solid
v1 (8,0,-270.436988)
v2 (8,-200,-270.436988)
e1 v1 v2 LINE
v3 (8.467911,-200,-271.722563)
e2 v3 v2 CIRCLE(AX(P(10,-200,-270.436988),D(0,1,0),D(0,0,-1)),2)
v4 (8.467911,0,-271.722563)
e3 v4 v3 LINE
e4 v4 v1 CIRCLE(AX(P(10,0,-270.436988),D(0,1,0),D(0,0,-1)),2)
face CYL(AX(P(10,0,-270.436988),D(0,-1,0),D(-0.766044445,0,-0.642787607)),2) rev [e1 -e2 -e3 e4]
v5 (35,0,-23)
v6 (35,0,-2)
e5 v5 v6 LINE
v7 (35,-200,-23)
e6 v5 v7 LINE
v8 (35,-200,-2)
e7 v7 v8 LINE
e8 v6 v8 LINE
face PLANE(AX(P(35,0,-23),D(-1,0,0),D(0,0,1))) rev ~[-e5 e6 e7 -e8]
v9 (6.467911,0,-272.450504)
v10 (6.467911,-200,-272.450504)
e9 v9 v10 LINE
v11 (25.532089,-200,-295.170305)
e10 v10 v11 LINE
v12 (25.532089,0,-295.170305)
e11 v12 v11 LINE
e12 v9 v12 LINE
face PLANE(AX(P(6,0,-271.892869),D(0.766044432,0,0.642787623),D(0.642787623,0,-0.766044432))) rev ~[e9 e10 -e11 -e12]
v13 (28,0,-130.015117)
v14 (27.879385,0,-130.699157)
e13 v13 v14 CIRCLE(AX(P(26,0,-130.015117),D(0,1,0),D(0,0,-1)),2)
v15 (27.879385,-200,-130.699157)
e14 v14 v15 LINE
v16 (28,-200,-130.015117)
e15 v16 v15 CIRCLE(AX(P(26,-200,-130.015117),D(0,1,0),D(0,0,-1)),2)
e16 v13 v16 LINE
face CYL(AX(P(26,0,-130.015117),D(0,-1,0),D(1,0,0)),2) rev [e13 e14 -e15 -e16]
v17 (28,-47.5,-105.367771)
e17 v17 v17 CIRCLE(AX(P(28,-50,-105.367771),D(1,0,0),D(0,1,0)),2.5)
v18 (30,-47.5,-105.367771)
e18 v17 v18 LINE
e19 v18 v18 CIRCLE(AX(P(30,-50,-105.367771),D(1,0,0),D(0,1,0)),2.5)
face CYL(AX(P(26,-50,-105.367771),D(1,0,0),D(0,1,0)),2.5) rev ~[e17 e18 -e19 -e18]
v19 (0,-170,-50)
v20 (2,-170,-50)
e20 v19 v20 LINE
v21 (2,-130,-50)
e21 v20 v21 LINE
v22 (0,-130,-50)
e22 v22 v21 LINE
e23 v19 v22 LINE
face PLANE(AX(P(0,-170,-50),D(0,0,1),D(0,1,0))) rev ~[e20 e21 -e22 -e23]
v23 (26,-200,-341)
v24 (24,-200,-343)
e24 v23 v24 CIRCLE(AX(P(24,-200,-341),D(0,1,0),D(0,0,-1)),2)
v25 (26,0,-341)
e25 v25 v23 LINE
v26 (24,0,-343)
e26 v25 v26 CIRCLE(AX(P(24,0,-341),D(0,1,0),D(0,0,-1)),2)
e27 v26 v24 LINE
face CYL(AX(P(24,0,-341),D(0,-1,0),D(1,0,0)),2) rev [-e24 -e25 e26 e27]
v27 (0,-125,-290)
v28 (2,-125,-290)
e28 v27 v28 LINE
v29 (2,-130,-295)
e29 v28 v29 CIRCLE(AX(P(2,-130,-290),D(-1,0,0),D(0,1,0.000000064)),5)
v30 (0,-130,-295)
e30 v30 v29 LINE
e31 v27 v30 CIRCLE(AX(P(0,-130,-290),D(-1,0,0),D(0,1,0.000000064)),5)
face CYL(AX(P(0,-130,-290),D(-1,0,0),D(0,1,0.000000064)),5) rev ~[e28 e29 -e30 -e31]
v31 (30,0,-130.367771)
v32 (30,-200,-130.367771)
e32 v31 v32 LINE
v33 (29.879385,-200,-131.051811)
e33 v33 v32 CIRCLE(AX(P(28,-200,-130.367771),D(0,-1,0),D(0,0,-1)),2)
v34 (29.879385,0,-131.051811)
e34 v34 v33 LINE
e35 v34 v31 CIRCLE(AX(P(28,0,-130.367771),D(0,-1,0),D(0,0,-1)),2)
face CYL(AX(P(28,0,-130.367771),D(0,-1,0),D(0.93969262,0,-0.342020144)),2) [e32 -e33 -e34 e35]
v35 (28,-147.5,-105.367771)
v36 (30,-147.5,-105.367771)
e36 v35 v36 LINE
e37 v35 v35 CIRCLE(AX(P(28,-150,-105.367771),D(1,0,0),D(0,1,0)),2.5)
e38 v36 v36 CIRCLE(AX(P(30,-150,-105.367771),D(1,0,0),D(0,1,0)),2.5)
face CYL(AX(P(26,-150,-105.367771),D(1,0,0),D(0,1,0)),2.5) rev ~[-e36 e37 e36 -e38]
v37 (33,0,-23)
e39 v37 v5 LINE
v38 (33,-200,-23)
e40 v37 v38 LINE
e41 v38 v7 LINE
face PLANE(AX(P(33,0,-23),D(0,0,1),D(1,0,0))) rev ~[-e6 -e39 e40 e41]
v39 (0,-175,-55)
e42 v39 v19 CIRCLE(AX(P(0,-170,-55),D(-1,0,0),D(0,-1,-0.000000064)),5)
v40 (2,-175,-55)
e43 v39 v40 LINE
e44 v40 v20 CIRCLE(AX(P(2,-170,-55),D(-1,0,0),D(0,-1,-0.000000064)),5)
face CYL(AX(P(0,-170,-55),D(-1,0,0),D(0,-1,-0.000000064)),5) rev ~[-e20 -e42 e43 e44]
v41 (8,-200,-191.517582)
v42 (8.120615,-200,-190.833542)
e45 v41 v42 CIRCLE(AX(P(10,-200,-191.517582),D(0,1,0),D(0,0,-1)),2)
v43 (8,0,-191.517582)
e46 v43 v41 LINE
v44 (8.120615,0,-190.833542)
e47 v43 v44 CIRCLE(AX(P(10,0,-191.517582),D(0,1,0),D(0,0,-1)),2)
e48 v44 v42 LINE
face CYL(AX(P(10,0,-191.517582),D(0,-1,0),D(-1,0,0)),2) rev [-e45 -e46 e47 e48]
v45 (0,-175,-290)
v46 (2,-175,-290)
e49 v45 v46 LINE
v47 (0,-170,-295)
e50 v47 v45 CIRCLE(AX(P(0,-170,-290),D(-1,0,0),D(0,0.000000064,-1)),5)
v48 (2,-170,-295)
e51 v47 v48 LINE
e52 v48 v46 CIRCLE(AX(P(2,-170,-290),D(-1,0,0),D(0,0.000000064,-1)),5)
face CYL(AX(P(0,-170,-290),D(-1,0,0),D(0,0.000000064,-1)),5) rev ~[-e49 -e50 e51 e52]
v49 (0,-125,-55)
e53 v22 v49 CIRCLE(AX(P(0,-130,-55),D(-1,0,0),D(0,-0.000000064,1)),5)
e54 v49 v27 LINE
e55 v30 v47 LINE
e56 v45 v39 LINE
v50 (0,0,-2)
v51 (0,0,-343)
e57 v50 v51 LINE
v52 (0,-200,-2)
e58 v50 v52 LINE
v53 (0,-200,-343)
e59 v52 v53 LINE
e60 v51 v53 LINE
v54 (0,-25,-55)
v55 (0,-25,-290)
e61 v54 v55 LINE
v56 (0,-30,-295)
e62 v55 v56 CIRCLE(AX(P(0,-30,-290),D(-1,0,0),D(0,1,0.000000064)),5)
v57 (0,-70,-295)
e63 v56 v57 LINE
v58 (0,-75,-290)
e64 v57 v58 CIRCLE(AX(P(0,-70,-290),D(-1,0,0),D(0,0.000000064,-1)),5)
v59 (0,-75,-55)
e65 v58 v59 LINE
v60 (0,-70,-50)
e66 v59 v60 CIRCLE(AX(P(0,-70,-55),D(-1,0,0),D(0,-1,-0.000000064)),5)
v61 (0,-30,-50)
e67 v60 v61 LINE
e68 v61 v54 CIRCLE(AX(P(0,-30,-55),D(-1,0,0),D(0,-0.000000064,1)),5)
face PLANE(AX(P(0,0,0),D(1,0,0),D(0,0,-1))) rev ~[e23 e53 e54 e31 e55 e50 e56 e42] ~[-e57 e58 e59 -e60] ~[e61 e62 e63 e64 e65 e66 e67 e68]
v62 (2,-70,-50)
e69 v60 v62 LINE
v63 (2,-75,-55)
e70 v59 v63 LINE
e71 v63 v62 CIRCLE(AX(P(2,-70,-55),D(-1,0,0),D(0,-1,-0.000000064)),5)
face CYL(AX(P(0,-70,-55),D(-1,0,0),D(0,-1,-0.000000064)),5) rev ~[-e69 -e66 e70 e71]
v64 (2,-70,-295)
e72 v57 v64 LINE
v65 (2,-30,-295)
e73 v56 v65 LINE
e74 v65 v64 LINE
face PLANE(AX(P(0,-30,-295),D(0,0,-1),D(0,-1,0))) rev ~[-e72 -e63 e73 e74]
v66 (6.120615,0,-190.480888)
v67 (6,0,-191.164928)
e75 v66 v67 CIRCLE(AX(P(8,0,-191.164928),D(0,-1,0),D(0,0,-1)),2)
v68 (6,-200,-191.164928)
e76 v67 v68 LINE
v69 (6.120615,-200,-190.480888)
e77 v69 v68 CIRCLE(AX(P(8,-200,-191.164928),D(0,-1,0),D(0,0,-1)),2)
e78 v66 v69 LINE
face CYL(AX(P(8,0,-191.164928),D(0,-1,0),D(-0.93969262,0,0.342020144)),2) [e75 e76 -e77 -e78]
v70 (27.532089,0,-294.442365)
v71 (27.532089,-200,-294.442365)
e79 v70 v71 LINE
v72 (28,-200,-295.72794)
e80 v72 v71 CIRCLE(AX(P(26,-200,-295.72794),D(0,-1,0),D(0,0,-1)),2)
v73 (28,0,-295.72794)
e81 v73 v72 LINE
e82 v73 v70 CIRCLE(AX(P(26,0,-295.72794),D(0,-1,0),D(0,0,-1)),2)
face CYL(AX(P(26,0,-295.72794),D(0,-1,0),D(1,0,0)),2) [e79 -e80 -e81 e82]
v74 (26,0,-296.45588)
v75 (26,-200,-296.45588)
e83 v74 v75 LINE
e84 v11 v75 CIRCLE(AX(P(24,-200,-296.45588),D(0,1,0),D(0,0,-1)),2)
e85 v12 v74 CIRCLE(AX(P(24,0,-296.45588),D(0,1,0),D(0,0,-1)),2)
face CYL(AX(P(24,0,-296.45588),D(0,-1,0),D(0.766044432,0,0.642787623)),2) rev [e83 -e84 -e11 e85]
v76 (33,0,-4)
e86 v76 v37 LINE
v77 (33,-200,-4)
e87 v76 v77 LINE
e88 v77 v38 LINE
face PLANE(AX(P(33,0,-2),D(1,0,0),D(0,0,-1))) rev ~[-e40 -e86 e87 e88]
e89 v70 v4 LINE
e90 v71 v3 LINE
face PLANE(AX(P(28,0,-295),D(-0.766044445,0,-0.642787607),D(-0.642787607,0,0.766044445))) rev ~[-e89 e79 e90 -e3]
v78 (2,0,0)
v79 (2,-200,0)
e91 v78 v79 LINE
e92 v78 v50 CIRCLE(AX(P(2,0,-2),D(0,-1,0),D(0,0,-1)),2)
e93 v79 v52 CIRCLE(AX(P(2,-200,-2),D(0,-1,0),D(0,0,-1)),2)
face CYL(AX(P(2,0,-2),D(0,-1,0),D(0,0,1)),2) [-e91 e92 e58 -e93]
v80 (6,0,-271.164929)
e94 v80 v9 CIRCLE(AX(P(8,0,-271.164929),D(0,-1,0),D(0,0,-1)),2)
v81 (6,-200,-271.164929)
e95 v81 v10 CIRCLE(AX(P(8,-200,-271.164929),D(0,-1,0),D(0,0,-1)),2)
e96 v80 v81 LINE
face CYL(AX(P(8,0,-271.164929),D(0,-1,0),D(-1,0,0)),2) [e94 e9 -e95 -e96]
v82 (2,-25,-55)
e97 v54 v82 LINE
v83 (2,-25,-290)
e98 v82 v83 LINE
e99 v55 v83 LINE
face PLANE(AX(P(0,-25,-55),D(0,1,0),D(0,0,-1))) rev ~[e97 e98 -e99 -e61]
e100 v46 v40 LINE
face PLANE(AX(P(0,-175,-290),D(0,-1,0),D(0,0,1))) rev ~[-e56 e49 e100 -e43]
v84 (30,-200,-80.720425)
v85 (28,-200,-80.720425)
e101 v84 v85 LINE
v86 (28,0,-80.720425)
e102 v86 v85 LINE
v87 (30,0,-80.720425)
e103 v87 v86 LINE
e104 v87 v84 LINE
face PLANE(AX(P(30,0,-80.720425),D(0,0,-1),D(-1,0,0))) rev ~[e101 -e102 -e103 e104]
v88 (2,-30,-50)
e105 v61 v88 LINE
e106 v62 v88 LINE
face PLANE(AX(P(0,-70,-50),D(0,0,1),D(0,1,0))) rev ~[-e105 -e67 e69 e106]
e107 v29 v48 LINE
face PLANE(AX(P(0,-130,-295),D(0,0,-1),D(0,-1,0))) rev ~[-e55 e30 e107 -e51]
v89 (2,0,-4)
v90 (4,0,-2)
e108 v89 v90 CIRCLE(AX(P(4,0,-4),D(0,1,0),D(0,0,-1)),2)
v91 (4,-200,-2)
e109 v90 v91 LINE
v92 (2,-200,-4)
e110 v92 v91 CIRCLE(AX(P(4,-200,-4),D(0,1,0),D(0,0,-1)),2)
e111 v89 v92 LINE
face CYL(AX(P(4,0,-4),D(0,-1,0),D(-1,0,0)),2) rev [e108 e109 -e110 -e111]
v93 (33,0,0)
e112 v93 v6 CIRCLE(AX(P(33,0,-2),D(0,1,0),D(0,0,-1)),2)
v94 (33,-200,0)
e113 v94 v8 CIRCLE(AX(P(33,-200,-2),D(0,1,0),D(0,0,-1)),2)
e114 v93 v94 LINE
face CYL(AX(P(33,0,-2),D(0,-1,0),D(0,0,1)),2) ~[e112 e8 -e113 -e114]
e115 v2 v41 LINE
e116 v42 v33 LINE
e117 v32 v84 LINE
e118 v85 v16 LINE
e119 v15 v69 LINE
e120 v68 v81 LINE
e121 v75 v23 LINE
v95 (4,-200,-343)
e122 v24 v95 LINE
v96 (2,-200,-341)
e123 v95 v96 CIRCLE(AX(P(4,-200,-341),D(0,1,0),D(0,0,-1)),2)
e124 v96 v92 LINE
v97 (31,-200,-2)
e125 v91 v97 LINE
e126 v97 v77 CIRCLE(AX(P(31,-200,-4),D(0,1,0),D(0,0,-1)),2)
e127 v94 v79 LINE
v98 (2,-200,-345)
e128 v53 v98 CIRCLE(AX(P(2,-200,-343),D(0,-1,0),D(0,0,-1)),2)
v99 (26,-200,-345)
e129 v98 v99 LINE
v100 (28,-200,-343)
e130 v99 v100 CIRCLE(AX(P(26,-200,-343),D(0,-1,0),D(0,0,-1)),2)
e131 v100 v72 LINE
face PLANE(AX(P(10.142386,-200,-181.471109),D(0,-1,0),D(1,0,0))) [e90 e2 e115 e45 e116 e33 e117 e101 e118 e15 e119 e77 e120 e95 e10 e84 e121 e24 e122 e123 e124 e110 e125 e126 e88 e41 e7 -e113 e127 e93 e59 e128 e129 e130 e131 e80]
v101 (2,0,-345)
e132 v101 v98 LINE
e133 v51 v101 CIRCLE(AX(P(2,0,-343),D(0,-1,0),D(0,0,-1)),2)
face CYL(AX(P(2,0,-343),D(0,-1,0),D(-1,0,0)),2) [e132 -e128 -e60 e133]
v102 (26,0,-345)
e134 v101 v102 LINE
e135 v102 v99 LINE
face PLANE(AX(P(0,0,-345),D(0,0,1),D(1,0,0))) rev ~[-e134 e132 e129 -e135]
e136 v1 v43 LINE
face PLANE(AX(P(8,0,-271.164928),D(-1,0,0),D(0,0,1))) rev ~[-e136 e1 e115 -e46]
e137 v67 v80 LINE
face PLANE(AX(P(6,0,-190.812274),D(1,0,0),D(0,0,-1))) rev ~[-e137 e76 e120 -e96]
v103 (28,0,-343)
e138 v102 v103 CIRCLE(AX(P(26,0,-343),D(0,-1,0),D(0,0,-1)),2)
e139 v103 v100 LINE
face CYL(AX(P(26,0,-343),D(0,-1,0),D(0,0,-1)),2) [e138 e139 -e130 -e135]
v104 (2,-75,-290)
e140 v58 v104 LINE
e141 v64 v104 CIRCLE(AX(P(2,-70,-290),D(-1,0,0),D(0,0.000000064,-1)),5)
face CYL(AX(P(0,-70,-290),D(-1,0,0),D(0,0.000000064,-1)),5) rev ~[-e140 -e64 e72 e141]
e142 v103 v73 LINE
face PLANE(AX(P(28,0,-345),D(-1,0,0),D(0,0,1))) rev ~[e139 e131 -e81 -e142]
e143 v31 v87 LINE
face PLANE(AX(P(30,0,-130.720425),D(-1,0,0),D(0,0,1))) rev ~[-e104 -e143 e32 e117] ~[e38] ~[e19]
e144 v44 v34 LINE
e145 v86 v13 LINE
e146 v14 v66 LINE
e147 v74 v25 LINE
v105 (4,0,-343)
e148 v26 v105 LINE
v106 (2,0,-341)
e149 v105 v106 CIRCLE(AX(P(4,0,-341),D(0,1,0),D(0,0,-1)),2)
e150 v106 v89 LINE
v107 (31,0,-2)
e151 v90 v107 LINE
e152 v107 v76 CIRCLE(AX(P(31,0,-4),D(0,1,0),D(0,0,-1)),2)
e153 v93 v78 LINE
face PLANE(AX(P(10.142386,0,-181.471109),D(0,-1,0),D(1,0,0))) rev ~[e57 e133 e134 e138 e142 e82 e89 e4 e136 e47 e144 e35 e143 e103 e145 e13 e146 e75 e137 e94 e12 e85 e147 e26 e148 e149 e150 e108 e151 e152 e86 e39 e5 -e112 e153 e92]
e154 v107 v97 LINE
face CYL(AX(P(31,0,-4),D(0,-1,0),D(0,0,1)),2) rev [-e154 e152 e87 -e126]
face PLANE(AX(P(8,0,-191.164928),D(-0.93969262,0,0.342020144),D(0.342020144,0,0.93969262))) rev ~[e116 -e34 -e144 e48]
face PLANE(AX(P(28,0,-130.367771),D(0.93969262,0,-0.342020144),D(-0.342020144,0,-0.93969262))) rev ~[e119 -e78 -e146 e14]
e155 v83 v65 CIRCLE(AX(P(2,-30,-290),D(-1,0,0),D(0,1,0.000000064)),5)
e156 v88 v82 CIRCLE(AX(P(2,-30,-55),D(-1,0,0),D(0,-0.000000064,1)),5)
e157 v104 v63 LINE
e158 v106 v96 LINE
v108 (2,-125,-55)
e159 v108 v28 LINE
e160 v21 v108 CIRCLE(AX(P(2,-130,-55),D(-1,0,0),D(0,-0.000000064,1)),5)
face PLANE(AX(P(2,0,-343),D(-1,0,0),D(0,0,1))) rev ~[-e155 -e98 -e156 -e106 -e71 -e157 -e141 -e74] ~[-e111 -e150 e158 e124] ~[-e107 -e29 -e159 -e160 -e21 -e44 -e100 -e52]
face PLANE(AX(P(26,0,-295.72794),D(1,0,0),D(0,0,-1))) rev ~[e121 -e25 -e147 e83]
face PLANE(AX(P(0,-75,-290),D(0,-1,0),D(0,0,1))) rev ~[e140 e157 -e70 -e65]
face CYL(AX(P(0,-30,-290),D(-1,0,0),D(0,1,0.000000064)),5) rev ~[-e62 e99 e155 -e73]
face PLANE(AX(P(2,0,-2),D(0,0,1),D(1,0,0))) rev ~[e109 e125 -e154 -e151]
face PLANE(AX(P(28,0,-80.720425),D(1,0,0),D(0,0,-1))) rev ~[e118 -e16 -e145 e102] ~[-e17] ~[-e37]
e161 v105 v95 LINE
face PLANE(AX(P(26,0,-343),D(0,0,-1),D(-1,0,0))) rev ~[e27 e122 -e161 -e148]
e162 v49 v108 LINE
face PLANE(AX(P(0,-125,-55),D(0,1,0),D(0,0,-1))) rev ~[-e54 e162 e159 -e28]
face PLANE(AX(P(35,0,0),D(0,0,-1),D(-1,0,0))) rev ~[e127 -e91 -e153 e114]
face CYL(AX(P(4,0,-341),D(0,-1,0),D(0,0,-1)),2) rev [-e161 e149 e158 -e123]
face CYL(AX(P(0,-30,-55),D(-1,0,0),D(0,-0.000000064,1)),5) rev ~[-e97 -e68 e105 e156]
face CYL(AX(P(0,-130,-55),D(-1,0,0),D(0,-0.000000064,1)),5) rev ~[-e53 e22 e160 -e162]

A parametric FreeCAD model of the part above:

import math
import FreeCAD as App
import Part
import Sketcher

V = App.Vector
Q = App.Units.Quantity


def edges_at(feature, points):
    """Names of the edges that pass closest to the given points."""
    edges = feature.Shape.Edges
    near = lambda p: min(range(len(edges)), key=lambda i: edges[i].distToShape(Part.Vertex(*p))[0])
    return sorted({f"Edge{near(p) + 1}" for p in points})

doc = App.newDocument("Part")
body = doc.addObject("PartDesign::Body", "Body")

# Sketch on XZ plane
sketch1 = body.newObject("Sketcher::SketchObject", "Sketch")
sketch1.AttachmentSupport = (doc.getObject("XZ_Plane"), [""])
sketch1.MapMode = "FlatFace"
sketch1.addGeometry([
    Part.LineSegment(V(35, 0, 0), V(0, 0, 0)),  # 0
    Part.LineSegment(V(0, 0, 0), V(0, -345, 0)),  # 1
    Part.LineSegment(V(0, -345, 0), V(28, -345, 0)),  # 2
    Part.LineSegment(V(28, -345, 0), V(28, -295, 0)),  # 3
    Part.LineSegment(V(28, -295, 0), V(8, -271.2, 0)),  # 4
    Part.LineSegment(V(8, -271.2, 0), V(8, -191.2, 0)),  # 5
    Part.LineSegment(V(8, -191.2, 0), V(30, -130.7, 0)),  # 6
    Part.LineSegment(V(30, -130.7, 0), V(30, -80.7, 0)),  # 7
    Part.LineSegment(V(30, -80.7, 0), V(28, -80.7, 0)),  # 8
    Part.LineSegment(V(28, -80.7, 0), V(28, -130.4, 0)),  # 9
    Part.LineSegment(V(28, -130.4, 0), V(6, -190.8, 0)),  # 10
    Part.LineSegment(V(6, -190.8, 0), V(6, -271.9, 0)),  # 11
    Part.LineSegment(V(6, -271.9, 0), V(26, -295.7, 0)),  # 12
    Part.LineSegment(V(26, -295.7, 0), V(26, -343, 0)),  # 13
    Part.LineSegment(V(26, -343, 0), V(2, -343, 0)),  # 14
    Part.LineSegment(V(2, -343, 0), V(2, -2, 0)),  # 15
    Part.LineSegment(V(2, -2, 0), V(33, -2, 0)),  # 16
    Part.LineSegment(V(33, -2, 0), V(33, -23, 0)),  # 17
    Part.LineSegment(V(33, -23, 0), V(35, -23, 0)),  # 18
    Part.LineSegment(V(35, -23, 0), V(35, 0, 0)),  # 19
], False)
sketch1.addConstraint([
    Sketcher.Constraint("Coincident", 0, 2, 1, 1),
    Sketcher.Constraint("Coincident", 1, 2, 2, 1),
    Sketcher.Constraint("Coincident", 2, 2, 3, 1),
    Sketcher.Constraint("Coincident", 3, 2, 4, 1),
    Sketcher.Constraint("Coincident", 4, 2, 5, 1),
    Sketcher.Constraint("Coincident", 5, 2, 6, 1),
    Sketcher.Constraint("Coincident", 6, 2, 7, 1),
    Sketcher.Constraint("Coincident", 7, 2, 8, 1),
    Sketcher.Constraint("Coincident", 8, 2, 9, 1),
    Sketcher.Constraint("Coincident", 9, 2, 10, 1),
    Sketcher.Constraint("Coincident", 10, 2, 11, 1),
    Sketcher.Constraint("Coincident", 11, 2, 12, 1),
    Sketcher.Constraint("Coincident", 12, 2, 13, 1),
    Sketcher.Constraint("Coincident", 13, 2, 14, 1),
    Sketcher.Constraint("Coincident", 14, 2, 15, 1),
    Sketcher.Constraint("Coincident", 15, 2, 16, 1),
    Sketcher.Constraint("Coincident", 16, 2, 17, 1),
    Sketcher.Constraint("Coincident", 17, 2, 18, 1),
    Sketcher.Constraint("Coincident", 18, 2, 19, 1),
    Sketcher.Constraint("Coincident", 19, 2, 0, 1),
    Sketcher.Constraint("Horizontal", 0),
    Sketcher.Constraint("Vertical", 1),
    Sketcher.Constraint("Horizontal", 2),
    Sketcher.Constraint("Vertical", 3),
    Sketcher.Constraint("Vertical", 5),
    Sketcher.Constraint("Vertical", 7),
    Sketcher.Constraint("Horizontal", 8),
    Sketcher.Constraint("Vertical", 9),
    Sketcher.Constraint("Vertical", 11),
    Sketcher.Constraint("Vertical", 13),
    Sketcher.Constraint("Horizontal", 14),
    Sketcher.Constraint("Vertical", 15),
    Sketcher.Constraint("Horizontal", 16),
    Sketcher.Constraint("Vertical", 17),
    Sketcher.Constraint("Horizontal", 18),
    Sketcher.Constraint("Vertical", 19),
    Sketcher.Constraint("Coincident", 0, 2, -1, 1),
    Sketcher.Constraint("Parallel", 6, 10),
    Sketcher.Constraint("Parallel", 4, 12),
    Sketcher.Constraint("Vertical", 3, 2, 8, 2),
    Sketcher.Constraint("Equal", 8, 18),
    Sketcher.Constraint("Equal", 3, 7),
    Sketcher.Constraint("Equal", 6, 10),
    Sketcher.Constraint("Equal", 4, 12),
    Sketcher.Constraint("DistanceX", 0, 2, 0, 1, 35.0),
    Sketcher.Constraint("DistanceX", 2, 1, 2, 2, 28.0),
    Sketcher.Constraint("DistanceX", 8, 2, 8, 1, 2.0),
    Sketcher.Constraint("DistanceX", 14, 2, 14, 1, 24.0),
    Sketcher.Constraint("DistanceY", 1, 2, 1, 1, 345.0),
    Sketcher.Constraint("DistanceY", 3, 1, 3, 2, 50.0),
    Sketcher.Constraint("DistanceY", 5, 1, 5, 2, 80.0),
    Sketcher.Constraint("DistanceY", 15, 1, 15, 2, 341.0),
    Sketcher.Constraint("DistanceY", 17, 2, 17, 1, 21.0),
    Sketcher.Constraint("DistanceY", 19, 1, 19, 2, 23.0),
    Sketcher.Constraint("Angle", 4, Q("130 deg")),
    Sketcher.Constraint("Angle", 6, Q("70 deg")),
    Sketcher.Constraint("DistanceX", -1, 1, 4, 2, 8.0),
    Sketcher.Constraint("DistanceY", 13, 2, 13, 1, 47.27206),
    Sketcher.Constraint("DistanceY", 9, 2, 9, 1, 49.647346),
])
pad1 = body.newObject("PartDesign::Pad", "Pad")
pad1.Profile = sketch1
pad1.Length = 200
doc.recompute()

fillet = body.newObject("PartDesign::Fillet", "Fillet")
fillet.Base = (pad1, edges_at(pad1, [
    (0, -100, 0),
    (35, -100, 0),
    (33, -100, -2),
    (2, -100, -2),
    (0, -100, -345),
    (2, -100, -343),
    (28, -100, -345),
    (26, -100, -343),
    (26, -100, -295.728),
    (28, -100, -295),
    (8, -100, -271.165),
    (6, -100, -271.893),
    (6, -100, -190.812),
    (8, -100, -191.165),
    (30, -100, -130.72),
    (28, -100, -130.368),
]))
fillet.Radius = 2

# Sketch on YZ plane
sketch2 = body.newObject("Sketcher::SketchObject", "Sketch001")
sketch2.AttachmentSupport = (doc.getObject("YZ_Plane"), [""])
sketch2.MapMode = "FlatFace"
sketch2.addGeometry([
    Part.LineSegment(V(-70, -50, 0), V(-30, -50, 0)),  # 0
    Part.ArcOfCircle(Part.Circle(V(-30, -55, 0), V(0, 0, 1), 5), math.radians(0), math.radians(90)),  # 1
    Part.LineSegment(V(-25, -55, 0), V(-25, -290, 0)),  # 2
    Part.ArcOfCircle(Part.Circle(V(-30, -290, 0), V(0, 0, 1), 5), math.radians(-90), math.radians(0)),  # 3
    Part.LineSegment(V(-30, -295, 0), V(-70, -295, 0)),  # 4
    Part.ArcOfCircle(Part.Circle(V(-70, -290, 0), V(0, 0, 1), 5), math.radians(180), math.radians(270)),  # 5
    Part.LineSegment(V(-75, -290, 0), V(-75, -55, 0)),  # 6
    Part.ArcOfCircle(Part.Circle(V(-70, -55, 0), V(0, 0, 1), 5), math.radians(90), math.radians(180)),  # 7
    Part.ArcOfCircle(Part.Circle(V(-130, -290, 0), V(0, 0, 1), 5), math.radians(-90), math.radians(0)),  # 8
    Part.LineSegment(V(-130, -295, 0), V(-170, -295, 0)),  # 9
    Part.ArcOfCircle(Part.Circle(V(-170, -290, 0), V(0, 0, 1), 5), math.radians(180), math.radians(270)),  # 10
    Part.LineSegment(V(-175, -290, 0), V(-175, -55, 0)),  # 11
    Part.ArcOfCircle(Part.Circle(V(-170, -55, 0), V(0, 0, 1), 5), math.radians(90), math.radians(180)),  # 12
    Part.LineSegment(V(-170, -50, 0), V(-130, -50, 0)),  # 13
    Part.ArcOfCircle(Part.Circle(V(-130, -55, 0), V(0, 0, 1), 5), math.radians(0), math.radians(90)),  # 14
    Part.LineSegment(V(-125, -55, 0), V(-125, -290, 0)),  # 15
], False)
sketch2.addConstraint([
    Sketcher.Constraint("Tangent", 0, 2, 1, 2),
    Sketcher.Constraint("Tangent", 1, 1, 2, 1),
    Sketcher.Constraint("Tangent", 2, 2, 3, 2),
    Sketcher.Constraint("Tangent", 3, 1, 4, 1),
    Sketcher.Constraint("Tangent", 4, 2, 5, 2),
    Sketcher.Constraint("Tangent", 5, 1, 6, 1),
    Sketcher.Constraint("Tangent", 6, 2, 7, 2),
    Sketcher.Constraint("Tangent", 7, 1, 0, 1),
    Sketcher.Constraint("Tangent", 8, 1, 9, 1),
    Sketcher.Constraint("Tangent", 9, 2, 10, 2),
    Sketcher.Constraint("Tangent", 10, 1, 11, 1),
    Sketcher.Constraint("Tangent", 11, 2, 12, 2),
    Sketcher.Constraint("Tangent", 12, 1, 13, 1),
    Sketcher.Constraint("Tangent", 13, 2, 14, 2),
    Sketcher.Constraint("Tangent", 14, 1, 15, 1),
    Sketcher.Constraint("Tangent", 15, 2, 8, 2),
    Sketcher.Constraint("Horizontal", 0),
    Sketcher.Constraint("Vertical", 2),
    Sketcher.Constraint("Horizontal", 4),
    Sketcher.Constraint("Vertical", 6),
    Sketcher.Constraint("Horizontal", 9),
    Sketcher.Constraint("Vertical", 11),
    Sketcher.Constraint("Horizontal", 13),
    Sketcher.Constraint("Vertical", 15),
    Sketcher.Constraint("Equal", 1, 3),
    Sketcher.Constraint("Equal", 3, 5),
    Sketcher.Constraint("Equal", 5, 7),
    Sketcher.Constraint("Equal", 7, 8),
    Sketcher.Constraint("Equal", 8, 10),
    Sketcher.Constraint("Equal", 10, 12),
    Sketcher.Constraint("Equal", 12, 14),
    Sketcher.Constraint("Horizontal", 5, 3, 8, 3),
    Sketcher.Constraint("Horizontal", 7, 3, 12, 3),
    Sketcher.Constraint("Equal", 4, 9),
    Sketcher.Constraint("Radius", 1, 5.0),
    Sketcher.Constraint("DistanceX", 0, 1, 0, 2, 40.0),
    Sketcher.Constraint("DistanceY", 2, 2, 2, 1, 235.0),
    Sketcher.Constraint("DistanceX", 1, 3, -1, 1, 30.0),
    Sketcher.Constraint("DistanceY", 1, 3, -1, 1, 55.0),
    Sketcher.Constraint("DistanceX", 8, 3, -1, 1, 130.0),
])
pocket1 = body.newObject("PartDesign::Pocket", "Pocket")
pocket1.Profile = sketch2
pocket1.Length = 2
pocket1.Reversed = True

# Sketch on YZ plane
sketch3 = body.newObject("Sketcher::SketchObject", "Sketch002")
sketch3.AttachmentSupport = (doc.getObject("YZ_Plane"), [""])
sketch3.MapMode = "FlatFace"
sketch3.AttachmentOffset = App.Placement(V(0, 0, 28), App.Rotation())
sketch3.addGeometry([
    Part.Circle(V(-50, -105.4, 0), V(0, 0, 1), 2.5),
    Part.Circle(V(-150, -105.4, 0), V(0, 0, 1), 2.5),
], False)
sketch3.addConstraint([
    Sketcher.Constraint("Equal", 0, 1),
    Sketcher.Constraint("Horizontal", 0, 3, 1, 3),
    Sketcher.Constraint("Diameter", 0, 5.0),
    Sketcher.Constraint("DistanceX", 0, 3, -1, 1, 50.0),
    Sketcher.Constraint("DistanceX", 1, 3, -1, 1, 150.0),
    Sketcher.Constraint("DistanceY", 0, 3, -1, 1, 105.367771),
])
doc.recompute()
hole = body.newObject("PartDesign::Hole", "Hole")
hole.Profile = sketch3
hole.ThreadType = "None"
hole.Diameter = 5
hole.DepthType = "Dimension"
hole.Depth = 2
hole.DrillPoint = "Flat"
hole.Reversed = True

doc.recompute()
